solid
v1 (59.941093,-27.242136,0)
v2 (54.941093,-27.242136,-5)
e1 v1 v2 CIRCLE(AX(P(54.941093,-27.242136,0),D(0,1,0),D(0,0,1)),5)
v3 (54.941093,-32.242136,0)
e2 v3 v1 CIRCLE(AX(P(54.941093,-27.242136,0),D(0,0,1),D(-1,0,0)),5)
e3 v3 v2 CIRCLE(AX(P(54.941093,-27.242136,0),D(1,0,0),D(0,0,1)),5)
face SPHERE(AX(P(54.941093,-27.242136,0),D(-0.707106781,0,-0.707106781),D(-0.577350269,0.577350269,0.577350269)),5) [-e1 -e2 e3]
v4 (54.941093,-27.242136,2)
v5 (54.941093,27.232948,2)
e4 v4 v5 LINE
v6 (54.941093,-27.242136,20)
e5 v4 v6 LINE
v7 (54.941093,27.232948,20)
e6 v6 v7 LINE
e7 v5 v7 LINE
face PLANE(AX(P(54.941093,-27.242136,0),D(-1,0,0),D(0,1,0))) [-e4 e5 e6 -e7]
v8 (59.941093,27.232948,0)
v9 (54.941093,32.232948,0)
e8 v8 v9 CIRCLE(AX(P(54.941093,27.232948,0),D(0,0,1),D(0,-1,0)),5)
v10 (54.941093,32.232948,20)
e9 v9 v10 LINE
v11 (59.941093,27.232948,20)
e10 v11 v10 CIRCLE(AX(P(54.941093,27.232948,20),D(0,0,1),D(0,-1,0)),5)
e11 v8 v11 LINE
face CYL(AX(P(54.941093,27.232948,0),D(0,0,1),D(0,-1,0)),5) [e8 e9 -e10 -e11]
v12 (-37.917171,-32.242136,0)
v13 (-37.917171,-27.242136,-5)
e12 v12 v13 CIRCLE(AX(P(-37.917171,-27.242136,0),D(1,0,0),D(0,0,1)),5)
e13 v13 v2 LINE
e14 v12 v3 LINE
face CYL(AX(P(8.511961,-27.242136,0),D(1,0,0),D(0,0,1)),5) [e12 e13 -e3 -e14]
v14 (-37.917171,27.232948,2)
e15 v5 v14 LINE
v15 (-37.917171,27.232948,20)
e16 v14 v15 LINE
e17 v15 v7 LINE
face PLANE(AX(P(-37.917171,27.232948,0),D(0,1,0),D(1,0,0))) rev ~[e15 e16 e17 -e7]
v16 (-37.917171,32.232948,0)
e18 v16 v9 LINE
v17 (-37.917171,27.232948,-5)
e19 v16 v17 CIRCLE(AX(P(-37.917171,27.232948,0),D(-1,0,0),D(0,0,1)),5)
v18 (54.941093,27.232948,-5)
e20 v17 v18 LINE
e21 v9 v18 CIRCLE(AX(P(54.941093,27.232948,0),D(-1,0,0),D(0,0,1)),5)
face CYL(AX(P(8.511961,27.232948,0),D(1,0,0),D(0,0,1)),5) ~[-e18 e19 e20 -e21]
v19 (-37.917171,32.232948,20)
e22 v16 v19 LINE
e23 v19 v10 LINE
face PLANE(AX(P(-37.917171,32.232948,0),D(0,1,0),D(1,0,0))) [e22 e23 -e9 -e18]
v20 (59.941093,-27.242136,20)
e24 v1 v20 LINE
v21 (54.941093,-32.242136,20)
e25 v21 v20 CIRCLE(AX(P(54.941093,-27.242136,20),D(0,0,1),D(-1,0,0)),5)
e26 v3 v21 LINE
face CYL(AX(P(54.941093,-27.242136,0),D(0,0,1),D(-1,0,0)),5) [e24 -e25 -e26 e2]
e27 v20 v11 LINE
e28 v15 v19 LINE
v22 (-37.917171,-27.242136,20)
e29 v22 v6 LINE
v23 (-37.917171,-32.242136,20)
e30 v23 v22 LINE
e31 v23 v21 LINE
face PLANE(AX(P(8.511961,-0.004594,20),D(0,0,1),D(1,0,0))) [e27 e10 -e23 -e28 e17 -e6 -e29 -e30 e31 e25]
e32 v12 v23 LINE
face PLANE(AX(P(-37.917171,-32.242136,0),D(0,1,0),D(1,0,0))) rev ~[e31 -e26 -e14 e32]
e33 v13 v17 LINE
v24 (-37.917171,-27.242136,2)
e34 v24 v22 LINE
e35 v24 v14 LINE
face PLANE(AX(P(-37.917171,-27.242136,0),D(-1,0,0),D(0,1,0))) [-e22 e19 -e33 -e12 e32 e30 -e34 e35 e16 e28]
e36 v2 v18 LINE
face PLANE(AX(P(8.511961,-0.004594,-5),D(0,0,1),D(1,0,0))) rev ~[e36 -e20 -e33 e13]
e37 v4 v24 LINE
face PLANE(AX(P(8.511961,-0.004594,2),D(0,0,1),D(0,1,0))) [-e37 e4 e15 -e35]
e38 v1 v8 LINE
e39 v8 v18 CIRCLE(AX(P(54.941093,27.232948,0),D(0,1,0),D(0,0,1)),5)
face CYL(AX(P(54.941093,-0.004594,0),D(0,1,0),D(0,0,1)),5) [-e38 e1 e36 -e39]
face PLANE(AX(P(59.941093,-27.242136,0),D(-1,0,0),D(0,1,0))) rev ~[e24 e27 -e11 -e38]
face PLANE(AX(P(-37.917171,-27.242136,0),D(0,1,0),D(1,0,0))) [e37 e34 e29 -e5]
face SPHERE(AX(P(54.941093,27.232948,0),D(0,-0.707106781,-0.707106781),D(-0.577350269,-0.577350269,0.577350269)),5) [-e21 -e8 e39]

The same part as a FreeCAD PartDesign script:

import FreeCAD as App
import Part
import Sketcher
from FreeCAD import Vector
Q = App.Units.Quantity


def faces_at(feature, points):
    """Names of the faces that lie closest to the given points."""
    faces = feature.Shape.Faces
    near = lambda p: min(range(len(faces)), key=lambda i: faces[i].distToShape(Part.Vertex(*p))[0])
    return sorted({f"Face{near(p) + 1}" for p in points})


def add_polygon(sketch, points):
    """Adds a closed chain of lines whose ends are joined by coincident constraints."""
    first, n = sketch.GeometryCount, len(points)
    for a, b in zip(points, points[1:] + points[:1]):
        sketch.addGeometry(Part.LineSegment(App.Vector(*a, 0), App.Vector(*b, 0)), False)
    for i in range(n):
        sketch.addConstraint(Sketcher.Constraint("Coincident", first + i, 2, first + (i + 1) % n, 1))

doc = App.newDocument("Part")
params = doc.addObject("Spreadsheet::Sheet", "Params")
for row, (alias, value) in enumerate([
    ("pad1_length", "20 mm"),
    ("thickness_wall", "5 mm"),
    ("pad2_length", "2 mm"),
], start=1):
    params.set(f"A{row}", alias)
    params.set(f"B{row}", "=" + value)
    params.setAlias(f"B{row}", alias)

body = doc.addObject("PartDesign::Body", "Body")

sketch1 = body.newObject("Sketcher::SketchObject", "Sketch")
sketch1.AttachmentSupport = (doc.getObject("XY_Plane"), [""])
sketch1.MapMode = "FlatFace"
add_polygon(sketch1, [(-37.917171, 27.232948), (-37.917171, -27.242136), (54.941093, -27.242136), (54.941093, 27.232948)])
sketch1.addConstraint([
    Sketcher.Constraint("Vertical", 0),
    Sketcher.Constraint("Horizontal", 1),
    Sketcher.Constraint("Vertical", 2),
    Sketcher.Constraint("Horizontal", 3),
    Sketcher.Constraint("DistanceX", 1, 1, 1, 2, Q("92.858264 mm")),
    Sketcher.Constraint("DistanceY", 0, 2, 0, 1, Q("54.475084 mm")),
    Sketcher.Constraint("DistanceX", 0, 2, -1, 1, Q("37.917171 mm")),
    Sketcher.Constraint("DistanceY", -1, 1, 2, 2, Q("27.232948 mm")),
])
pad1 = body.newObject("PartDesign::Pad", "Pad")
pad1.Profile = sketch1
pad1.setExpression("Length", "Params.pad1_length")
doc.recompute()

thickness = body.newObject("PartDesign::Thickness", "Thickness")
thickness.Base = (pad1, faces_at(pad1, [(8.512, -0.005, 20), (-37.917, -0.005, 10)]))
thickness.setExpression("Value", "Params.thickness_wall")
thickness.Reversed = False
thickness.Join = "Arc"

sketch2 = body.newObject("Sketcher::SketchObject", "Sketch001")
sketch2.AttachmentSupport = (doc.getObject("XY_Plane"), [""])
sketch2.MapMode = "FlatFace"
add_polygon(sketch2, [(-37.917171, -27.242136), (54.941093, -27.242136), (54.941093, 27.232948), (-37.917171, 27.232948)])
sketch2.addConstraint([
    Sketcher.Constraint("Horizontal", 0),
    Sketcher.Constraint("Vertical", 1),
    Sketcher.Constraint("Horizontal", 2),
    Sketcher.Constraint("Vertical", 3),
    Sketcher.Constraint("DistanceX", 0, 1, 0, 2, Q("92.858264 mm")),
    Sketcher.Constraint("DistanceY", 1, 1, 1, 2, Q("54.475084 mm")),
    Sketcher.Constraint("DistanceY", -1, 1, 1, 2, Q("27.232948 mm")),
    Sketcher.Constraint("DistanceX", 2, 2, -1, 1, Q("37.917171 mm")),
])
pad2 = body.newObject("PartDesign::Pad", "Pad001")
pad2.Profile = sketch2
pad2.setExpression("Length", "Params.pad2_length")

doc.recompute()
